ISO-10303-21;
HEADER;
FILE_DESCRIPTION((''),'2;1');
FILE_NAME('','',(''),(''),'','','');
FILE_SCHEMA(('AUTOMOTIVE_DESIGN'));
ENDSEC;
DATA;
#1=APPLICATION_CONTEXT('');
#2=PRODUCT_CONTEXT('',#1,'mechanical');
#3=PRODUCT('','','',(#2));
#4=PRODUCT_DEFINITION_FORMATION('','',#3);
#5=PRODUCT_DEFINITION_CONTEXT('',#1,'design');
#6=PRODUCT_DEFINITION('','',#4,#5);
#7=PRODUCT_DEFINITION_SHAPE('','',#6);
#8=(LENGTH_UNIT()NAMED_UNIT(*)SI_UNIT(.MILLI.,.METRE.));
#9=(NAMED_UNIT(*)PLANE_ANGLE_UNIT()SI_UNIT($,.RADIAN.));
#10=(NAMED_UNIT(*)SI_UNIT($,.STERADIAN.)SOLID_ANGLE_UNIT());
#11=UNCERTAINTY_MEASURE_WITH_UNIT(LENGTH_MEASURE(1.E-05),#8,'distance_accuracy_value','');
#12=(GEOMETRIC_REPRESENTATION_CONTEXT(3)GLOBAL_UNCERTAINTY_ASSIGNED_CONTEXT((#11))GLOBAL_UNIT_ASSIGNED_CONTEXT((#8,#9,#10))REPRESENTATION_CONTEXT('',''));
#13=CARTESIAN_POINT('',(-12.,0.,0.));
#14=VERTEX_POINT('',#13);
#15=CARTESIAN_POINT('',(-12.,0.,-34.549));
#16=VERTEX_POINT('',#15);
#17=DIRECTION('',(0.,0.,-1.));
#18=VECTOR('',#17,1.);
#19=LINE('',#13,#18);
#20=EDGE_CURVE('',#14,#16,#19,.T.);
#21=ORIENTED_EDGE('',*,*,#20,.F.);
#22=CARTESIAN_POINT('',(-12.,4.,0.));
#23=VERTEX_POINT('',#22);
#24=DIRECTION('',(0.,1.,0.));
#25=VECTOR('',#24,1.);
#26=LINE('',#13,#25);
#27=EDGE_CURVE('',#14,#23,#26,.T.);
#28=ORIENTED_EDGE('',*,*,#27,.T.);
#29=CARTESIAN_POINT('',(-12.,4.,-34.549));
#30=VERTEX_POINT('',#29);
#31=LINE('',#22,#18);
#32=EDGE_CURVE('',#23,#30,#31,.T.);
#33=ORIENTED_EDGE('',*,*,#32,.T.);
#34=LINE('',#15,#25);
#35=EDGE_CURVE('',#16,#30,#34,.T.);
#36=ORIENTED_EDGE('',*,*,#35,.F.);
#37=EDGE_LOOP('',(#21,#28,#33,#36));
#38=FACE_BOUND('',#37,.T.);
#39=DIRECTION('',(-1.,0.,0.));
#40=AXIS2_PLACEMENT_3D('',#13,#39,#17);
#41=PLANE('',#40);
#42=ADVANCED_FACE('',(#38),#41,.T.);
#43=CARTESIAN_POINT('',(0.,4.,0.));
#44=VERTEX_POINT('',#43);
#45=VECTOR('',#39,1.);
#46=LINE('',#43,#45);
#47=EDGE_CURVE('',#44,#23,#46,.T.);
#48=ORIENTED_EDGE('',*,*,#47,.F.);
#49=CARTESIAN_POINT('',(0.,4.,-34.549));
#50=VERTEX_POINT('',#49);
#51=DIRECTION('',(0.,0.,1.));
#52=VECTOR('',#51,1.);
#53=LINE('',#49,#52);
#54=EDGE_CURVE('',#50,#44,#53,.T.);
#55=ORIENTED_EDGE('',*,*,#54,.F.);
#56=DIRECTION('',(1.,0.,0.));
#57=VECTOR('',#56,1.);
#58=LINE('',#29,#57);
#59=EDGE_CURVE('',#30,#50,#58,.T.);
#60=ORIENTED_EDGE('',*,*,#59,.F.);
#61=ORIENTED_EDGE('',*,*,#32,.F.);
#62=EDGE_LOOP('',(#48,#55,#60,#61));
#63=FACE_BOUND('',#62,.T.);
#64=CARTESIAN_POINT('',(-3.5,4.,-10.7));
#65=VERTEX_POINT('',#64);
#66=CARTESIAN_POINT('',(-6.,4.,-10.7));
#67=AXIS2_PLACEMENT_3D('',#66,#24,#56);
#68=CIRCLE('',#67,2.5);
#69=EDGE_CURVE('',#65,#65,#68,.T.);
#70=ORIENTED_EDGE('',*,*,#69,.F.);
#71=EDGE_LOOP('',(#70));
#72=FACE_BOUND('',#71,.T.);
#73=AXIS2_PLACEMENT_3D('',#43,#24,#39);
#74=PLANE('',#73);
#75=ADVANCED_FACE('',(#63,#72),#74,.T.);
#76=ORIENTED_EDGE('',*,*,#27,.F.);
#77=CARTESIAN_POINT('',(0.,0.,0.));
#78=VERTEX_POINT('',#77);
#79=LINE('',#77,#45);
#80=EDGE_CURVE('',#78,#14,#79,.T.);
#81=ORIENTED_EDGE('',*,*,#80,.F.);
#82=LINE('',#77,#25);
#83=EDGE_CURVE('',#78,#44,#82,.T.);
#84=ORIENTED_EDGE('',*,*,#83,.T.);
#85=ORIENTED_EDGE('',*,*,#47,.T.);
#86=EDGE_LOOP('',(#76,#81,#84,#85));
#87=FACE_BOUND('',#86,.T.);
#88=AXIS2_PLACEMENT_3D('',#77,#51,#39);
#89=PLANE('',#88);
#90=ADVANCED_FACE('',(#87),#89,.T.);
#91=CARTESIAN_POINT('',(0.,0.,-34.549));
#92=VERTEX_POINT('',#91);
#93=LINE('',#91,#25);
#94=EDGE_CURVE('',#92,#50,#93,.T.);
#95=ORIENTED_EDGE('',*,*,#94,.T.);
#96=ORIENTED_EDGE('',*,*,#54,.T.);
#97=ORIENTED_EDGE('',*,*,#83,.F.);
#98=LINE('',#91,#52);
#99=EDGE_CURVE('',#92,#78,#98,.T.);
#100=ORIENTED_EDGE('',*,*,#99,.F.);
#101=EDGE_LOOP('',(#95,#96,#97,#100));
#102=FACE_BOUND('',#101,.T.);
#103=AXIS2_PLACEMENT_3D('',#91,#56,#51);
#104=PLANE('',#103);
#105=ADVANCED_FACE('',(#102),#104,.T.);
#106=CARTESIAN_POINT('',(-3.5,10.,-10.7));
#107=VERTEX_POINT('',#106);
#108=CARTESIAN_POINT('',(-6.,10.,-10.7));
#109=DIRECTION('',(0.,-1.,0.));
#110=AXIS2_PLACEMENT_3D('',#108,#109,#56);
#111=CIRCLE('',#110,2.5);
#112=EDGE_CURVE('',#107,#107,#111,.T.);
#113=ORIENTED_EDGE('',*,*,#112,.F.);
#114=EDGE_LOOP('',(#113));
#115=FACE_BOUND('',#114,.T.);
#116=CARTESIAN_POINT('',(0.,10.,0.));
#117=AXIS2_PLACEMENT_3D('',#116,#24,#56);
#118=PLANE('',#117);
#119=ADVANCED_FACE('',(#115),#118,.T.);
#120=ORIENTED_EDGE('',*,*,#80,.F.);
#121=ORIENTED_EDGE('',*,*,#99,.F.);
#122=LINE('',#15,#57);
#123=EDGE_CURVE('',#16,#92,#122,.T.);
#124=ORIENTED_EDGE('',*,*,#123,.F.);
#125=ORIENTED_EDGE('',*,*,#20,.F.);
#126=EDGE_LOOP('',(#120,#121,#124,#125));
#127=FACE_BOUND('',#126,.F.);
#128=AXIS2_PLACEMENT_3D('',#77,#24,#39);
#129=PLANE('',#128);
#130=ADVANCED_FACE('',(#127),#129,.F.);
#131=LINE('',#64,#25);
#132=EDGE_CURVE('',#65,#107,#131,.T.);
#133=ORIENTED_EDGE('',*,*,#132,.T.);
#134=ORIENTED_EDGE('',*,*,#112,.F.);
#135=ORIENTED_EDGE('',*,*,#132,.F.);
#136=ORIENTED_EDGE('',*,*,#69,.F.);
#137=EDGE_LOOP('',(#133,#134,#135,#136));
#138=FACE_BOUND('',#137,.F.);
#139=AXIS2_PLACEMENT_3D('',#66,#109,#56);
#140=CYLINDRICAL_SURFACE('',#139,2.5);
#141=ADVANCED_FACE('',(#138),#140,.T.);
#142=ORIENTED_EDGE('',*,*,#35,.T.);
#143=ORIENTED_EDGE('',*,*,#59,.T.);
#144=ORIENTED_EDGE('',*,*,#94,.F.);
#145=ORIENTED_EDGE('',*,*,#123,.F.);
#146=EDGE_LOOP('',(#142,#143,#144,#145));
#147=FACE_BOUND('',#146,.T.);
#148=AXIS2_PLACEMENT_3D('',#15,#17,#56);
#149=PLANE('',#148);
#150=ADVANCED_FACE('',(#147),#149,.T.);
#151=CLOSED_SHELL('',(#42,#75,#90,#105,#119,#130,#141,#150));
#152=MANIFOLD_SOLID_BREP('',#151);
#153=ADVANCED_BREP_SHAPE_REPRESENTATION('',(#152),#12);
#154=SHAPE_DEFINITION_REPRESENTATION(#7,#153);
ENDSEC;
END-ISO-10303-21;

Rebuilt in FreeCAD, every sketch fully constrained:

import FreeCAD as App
import Part
import Sketcher
from FreeCAD import Vector
Q = App.Units.Quantity

doc = App.newDocument("Part")
params = doc.addObject("Spreadsheet::Sheet", "Params")
for row, (alias, value) in enumerate([
    ("sketch1_width", "12 mm"),
    ("pad1_length", "4 mm"),
    ("sketch2_diameter", "5 mm"),
    ("pad2_length", "6 mm"),
], start=1):
    params.set(f"A{row}", alias)
    params.set(f"B{row}", "=" + value)
    params.setAlias(f"B{row}", alias)

body = doc.addObject("PartDesign::Body", "Body")

sketch1 = body.newObject("Sketcher::SketchObject", "Sketch")
sketch1.AttachmentSupport = (doc.getObject("XZ_Plane"), [""])
sketch1.MapMode = "FlatFace"
sketch1.addGeometry(Part.LineSegment(Vector(-12, 0, 0), Vector(0, 0, 0)), False)
sketch1.addGeometry(Part.LineSegment(Vector(0, 0, 0), Vector(0, -34.549, 0)), False)
sketch1.addGeometry(Part.LineSegment(Vector(0, -34.549, 0), Vector(-12, -34.549, 0)), False)
sketch1.addGeometry(Part.LineSegment(Vector(-12, -34.549, 0), Vector(-12, 0, 0)), False)
sketch1.addConstraint(Sketcher.Constraint("Coincident", 0, 2, 1, 1))
sketch1.addConstraint(Sketcher.Constraint("Coincident", 1, 2, 2, 1))
sketch1.addConstraint(Sketcher.Constraint("Coincident", 2, 2, 3, 1))
sketch1.addConstraint(Sketcher.Constraint("Coincident", 3, 2, 0, 1))
sketch1.addConstraint(Sketcher.Constraint("Horizontal", 0))
sketch1.addConstraint(Sketcher.Constraint("Vertical", 1))
sketch1.addConstraint(Sketcher.Constraint("Horizontal", 2))
sketch1.addConstraint(Sketcher.Constraint("Vertical", 3))
sketch1.addConstraint(Sketcher.Constraint("Coincident", 0, 2, -1, 1))
sketch1.addConstraint(Sketcher.Constraint("DistanceX", 0, 1, 0, 2, Q("12 mm")))
sketch1.addConstraint(Sketcher.Constraint("DistanceY", 1, 2, 1, 1, Q("34.549 mm")))
sketch1.setExpression("Constraints[9]", "Params.sketch1_width")
pad1 = body.newObject("PartDesign::Pad", "Pad")
pad1.Profile = sketch1
pad1.setExpression("Length", "Params.pad1_length")
pad1.Reversed = True

sketch2 = body.newObject("Sketcher::SketchObject", "Sketch001")
sketch2.AttachmentSupport = (doc.getObject("XZ_Plane"), [""])
sketch2.MapMode = "FlatFace"
sketch2.AttachmentOffset = App.Placement(Vector(0, 0, -4), App.Rotation())
sketch2.addGeometry(Part.Circle(Vector(-6, -10.7, 0), Vector(0, 0, 1), 2.5), False)
sketch2.addConstraint(Sketcher.Constraint("Diameter", 0, Q("5 mm")))
sketch2.addConstraint(Sketcher.Constraint("DistanceX", 0, 3, -1, 1, Q("6 mm")))
sketch2.addConstraint(Sketcher.Constraint("DistanceY", 0, 3, -1, 1, Q("10.7 mm")))
sketch2.setExpression("Constraints[0]", "Params.sketch2_diameter")
pad2 = body.newObject("PartDesign::Pad", "Pad001")
pad2.Profile = sketch2
pad2.setExpression("Length", "Params.pad2_length")
pad2.Reversed = True

doc.recompute()
